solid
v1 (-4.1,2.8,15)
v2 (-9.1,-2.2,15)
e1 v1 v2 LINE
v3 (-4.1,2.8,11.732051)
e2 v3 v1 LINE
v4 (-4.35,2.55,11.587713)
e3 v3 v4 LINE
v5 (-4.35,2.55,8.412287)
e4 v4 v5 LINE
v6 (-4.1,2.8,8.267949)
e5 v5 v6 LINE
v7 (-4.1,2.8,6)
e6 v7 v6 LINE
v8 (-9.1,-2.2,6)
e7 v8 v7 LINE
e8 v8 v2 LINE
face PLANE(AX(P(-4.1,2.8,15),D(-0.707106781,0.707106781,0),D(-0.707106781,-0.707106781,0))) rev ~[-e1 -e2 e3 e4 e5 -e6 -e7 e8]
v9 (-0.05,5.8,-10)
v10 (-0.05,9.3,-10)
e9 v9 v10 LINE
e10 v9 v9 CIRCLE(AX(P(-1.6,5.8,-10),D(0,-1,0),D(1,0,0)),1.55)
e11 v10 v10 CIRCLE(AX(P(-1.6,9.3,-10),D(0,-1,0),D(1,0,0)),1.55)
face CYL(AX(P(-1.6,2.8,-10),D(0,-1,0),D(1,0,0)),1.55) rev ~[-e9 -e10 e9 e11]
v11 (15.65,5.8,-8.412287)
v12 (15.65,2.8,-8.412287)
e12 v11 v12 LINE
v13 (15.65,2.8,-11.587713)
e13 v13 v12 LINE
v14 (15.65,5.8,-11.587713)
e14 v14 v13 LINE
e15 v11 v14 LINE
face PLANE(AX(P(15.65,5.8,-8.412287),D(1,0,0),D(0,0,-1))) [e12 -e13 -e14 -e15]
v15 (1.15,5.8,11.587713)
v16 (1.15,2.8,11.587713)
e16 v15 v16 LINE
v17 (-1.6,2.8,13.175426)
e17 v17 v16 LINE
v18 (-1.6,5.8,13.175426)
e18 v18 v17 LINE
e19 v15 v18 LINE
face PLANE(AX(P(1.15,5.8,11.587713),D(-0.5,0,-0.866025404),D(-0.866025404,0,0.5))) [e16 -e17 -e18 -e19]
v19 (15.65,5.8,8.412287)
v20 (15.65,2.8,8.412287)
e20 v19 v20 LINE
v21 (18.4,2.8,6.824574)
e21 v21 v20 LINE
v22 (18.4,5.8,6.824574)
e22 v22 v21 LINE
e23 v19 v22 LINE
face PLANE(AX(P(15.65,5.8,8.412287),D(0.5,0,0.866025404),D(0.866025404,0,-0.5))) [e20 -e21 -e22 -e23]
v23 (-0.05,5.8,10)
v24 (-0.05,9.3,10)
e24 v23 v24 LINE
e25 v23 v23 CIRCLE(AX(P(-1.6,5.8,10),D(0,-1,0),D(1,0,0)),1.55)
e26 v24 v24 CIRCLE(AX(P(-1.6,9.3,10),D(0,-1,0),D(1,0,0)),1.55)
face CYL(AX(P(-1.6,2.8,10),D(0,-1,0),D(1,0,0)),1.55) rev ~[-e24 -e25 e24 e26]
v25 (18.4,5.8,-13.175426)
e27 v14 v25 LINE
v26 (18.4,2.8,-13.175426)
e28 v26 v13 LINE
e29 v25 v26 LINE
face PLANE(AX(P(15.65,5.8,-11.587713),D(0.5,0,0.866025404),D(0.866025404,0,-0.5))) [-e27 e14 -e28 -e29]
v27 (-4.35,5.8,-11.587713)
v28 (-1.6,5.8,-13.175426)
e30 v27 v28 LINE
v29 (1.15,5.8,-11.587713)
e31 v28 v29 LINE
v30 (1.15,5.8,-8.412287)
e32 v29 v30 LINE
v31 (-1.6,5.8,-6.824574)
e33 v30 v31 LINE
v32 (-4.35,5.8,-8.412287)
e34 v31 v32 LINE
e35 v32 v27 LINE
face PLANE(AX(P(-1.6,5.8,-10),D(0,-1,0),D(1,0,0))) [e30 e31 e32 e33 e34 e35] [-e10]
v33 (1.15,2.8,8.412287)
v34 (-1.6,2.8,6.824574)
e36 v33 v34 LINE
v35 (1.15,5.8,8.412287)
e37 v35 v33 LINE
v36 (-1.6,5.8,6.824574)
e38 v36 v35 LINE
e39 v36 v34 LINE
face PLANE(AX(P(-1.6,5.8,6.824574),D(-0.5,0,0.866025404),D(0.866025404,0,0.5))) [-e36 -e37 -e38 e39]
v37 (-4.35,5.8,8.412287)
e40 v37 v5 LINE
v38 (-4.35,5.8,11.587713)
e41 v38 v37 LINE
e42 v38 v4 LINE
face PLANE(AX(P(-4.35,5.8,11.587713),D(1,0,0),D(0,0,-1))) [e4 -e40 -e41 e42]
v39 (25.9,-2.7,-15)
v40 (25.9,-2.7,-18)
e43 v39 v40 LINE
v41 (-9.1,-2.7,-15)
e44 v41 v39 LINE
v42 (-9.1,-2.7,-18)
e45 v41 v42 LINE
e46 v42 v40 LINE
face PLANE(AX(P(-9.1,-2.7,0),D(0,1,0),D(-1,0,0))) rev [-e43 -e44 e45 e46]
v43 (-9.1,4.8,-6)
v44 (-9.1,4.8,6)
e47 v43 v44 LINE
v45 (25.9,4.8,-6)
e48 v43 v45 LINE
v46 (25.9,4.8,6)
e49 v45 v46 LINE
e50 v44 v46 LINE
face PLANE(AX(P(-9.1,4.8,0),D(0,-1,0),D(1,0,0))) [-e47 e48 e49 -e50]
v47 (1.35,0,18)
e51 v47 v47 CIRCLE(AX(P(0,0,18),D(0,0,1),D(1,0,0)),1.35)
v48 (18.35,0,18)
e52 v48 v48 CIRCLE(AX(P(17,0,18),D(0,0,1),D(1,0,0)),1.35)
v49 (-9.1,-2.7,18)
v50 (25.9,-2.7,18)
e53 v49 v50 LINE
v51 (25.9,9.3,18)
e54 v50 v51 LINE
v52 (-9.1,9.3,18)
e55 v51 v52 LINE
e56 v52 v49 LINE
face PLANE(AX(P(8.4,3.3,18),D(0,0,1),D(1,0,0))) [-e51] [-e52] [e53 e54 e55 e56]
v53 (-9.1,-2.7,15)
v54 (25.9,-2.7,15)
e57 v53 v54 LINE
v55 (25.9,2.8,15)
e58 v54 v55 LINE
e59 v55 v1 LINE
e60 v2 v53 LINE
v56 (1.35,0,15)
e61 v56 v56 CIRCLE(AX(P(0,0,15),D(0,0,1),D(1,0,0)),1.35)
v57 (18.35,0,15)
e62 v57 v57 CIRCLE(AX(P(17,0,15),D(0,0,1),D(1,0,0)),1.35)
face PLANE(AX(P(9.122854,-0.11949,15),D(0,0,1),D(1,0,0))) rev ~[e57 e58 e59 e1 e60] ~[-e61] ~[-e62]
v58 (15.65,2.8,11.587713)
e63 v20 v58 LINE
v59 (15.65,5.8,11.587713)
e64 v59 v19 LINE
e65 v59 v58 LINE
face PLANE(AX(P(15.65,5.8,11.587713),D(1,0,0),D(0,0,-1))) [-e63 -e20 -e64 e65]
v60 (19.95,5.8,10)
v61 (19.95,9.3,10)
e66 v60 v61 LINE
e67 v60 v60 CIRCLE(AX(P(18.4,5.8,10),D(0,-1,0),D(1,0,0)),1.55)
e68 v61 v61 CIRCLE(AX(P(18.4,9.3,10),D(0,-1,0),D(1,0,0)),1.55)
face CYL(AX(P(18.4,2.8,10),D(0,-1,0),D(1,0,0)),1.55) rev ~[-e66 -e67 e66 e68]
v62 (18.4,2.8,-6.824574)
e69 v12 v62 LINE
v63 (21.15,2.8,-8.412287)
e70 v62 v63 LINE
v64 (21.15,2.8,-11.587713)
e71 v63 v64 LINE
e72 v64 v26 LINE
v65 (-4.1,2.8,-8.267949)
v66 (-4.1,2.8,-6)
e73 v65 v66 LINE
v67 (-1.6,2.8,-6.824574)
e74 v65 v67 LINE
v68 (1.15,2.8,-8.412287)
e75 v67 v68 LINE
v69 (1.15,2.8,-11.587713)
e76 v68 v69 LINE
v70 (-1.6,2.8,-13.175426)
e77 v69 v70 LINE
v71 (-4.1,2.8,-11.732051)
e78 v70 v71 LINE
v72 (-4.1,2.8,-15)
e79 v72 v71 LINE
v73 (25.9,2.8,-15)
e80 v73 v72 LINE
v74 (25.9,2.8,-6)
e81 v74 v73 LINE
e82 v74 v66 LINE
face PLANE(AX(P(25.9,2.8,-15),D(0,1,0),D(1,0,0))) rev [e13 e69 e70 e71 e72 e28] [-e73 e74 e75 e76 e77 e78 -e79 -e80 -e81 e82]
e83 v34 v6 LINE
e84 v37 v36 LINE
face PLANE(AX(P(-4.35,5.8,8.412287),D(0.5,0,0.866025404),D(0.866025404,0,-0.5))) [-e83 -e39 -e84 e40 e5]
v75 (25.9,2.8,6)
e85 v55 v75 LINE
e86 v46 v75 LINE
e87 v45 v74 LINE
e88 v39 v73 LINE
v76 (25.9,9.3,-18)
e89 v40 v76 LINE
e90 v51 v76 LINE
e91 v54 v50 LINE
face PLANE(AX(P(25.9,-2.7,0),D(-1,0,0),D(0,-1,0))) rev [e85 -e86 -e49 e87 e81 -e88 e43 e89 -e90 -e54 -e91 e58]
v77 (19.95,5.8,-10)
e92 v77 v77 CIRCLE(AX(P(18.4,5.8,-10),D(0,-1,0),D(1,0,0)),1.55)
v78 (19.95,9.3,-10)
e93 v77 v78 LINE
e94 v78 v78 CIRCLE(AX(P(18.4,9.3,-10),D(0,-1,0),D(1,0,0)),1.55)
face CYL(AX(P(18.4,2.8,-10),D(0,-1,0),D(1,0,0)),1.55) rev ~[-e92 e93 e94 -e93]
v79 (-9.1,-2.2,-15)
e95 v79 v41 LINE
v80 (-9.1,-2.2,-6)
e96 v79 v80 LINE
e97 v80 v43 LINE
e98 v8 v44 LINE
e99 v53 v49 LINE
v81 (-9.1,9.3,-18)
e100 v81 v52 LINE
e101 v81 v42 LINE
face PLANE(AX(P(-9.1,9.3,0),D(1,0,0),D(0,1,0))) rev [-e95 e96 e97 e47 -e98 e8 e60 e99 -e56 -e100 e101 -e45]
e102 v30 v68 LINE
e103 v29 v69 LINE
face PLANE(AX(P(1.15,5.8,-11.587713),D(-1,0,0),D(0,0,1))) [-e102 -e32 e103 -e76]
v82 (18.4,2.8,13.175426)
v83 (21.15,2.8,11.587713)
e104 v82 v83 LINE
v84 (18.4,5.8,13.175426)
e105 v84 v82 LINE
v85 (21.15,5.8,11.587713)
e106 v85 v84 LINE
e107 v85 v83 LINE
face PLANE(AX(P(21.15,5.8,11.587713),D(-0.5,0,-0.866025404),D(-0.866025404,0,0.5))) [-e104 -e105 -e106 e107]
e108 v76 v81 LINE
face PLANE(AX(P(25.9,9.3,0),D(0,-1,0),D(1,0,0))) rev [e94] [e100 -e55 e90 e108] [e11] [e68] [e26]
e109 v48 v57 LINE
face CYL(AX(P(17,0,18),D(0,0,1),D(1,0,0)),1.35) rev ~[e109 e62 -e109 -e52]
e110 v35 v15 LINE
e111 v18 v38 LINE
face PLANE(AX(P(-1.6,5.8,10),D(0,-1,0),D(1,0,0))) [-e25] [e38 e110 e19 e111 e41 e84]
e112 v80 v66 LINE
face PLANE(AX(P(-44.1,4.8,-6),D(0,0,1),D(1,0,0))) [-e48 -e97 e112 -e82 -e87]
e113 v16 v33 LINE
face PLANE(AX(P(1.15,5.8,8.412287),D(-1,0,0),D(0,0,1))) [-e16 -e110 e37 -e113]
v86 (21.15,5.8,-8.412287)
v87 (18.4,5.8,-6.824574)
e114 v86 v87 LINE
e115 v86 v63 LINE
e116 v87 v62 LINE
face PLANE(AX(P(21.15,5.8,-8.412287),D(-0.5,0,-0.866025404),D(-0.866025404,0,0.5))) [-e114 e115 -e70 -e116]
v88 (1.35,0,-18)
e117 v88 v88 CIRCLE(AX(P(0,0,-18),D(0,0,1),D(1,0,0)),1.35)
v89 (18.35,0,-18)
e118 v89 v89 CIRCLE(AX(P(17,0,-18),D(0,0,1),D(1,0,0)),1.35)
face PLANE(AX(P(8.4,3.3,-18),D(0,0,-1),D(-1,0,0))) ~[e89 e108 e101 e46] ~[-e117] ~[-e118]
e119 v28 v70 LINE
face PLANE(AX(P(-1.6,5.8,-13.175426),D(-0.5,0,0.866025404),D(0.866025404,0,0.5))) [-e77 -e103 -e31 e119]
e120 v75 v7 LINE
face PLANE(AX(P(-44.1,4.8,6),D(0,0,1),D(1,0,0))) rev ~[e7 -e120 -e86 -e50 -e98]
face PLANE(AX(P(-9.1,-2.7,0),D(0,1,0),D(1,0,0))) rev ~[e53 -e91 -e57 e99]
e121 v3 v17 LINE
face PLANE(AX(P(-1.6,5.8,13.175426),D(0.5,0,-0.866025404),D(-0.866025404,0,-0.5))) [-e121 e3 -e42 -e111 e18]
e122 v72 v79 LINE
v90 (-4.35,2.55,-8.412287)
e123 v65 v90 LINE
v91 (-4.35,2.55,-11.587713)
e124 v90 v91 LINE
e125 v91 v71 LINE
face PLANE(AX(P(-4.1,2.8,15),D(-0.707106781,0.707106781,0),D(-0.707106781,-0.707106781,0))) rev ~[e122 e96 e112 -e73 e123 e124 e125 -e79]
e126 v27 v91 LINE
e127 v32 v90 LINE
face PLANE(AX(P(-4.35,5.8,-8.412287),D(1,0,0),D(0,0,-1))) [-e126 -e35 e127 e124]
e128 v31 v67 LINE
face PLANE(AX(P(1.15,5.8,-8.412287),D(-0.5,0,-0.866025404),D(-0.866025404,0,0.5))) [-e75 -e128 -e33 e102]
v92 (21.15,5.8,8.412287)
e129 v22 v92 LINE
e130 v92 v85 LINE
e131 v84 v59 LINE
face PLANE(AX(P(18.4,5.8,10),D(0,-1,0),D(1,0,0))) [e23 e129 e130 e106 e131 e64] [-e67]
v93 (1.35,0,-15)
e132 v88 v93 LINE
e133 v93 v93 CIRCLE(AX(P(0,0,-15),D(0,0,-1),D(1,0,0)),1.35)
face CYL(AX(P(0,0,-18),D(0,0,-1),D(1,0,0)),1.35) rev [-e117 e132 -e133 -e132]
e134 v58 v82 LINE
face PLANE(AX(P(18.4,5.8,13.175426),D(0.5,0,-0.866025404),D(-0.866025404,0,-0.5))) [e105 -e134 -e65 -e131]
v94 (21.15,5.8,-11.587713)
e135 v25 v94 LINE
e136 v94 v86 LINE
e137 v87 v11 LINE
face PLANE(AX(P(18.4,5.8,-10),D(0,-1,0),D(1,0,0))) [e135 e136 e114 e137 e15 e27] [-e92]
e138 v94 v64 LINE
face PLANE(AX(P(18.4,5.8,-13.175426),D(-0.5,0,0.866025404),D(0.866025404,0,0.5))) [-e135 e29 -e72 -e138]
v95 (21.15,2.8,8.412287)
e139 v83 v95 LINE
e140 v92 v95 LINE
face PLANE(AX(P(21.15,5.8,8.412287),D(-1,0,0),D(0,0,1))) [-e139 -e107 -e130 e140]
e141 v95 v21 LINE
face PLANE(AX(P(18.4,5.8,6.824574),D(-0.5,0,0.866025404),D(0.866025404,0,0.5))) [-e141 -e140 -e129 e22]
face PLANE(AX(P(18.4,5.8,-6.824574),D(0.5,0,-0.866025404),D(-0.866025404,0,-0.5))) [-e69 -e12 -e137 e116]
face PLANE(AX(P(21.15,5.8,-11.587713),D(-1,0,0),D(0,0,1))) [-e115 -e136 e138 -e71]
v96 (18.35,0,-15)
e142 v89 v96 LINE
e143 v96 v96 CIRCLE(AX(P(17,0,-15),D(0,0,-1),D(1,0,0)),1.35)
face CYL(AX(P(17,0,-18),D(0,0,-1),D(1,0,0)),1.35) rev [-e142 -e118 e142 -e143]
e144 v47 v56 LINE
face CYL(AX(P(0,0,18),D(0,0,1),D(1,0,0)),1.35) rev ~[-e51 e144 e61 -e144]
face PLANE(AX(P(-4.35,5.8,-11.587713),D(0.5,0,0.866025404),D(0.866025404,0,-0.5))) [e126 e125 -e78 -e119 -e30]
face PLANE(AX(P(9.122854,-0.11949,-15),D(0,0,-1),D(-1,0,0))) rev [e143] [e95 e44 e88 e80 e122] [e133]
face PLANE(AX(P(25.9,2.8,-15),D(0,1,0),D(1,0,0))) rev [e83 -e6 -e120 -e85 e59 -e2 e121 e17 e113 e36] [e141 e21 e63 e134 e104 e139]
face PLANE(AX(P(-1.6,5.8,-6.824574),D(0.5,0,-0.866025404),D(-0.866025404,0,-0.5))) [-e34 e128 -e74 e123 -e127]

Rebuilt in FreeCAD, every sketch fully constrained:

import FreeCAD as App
import Part
import Sketcher
Q = App.Units.Quantity


def add_polygon(sketch, points):
    """Adds a closed chain of lines whose ends are joined by coincident constraints."""
    first, n = sketch.GeometryCount, len(points)
    for a, b in zip(points, points[1:] + points[:1]):
        sketch.addGeometry(Part.LineSegment(App.Vector(*a, 0), App.Vector(*b, 0)), False)
    for i in range(n):
        sketch.addConstraint(Sketcher.Constraint("Coincident", first + i, 2, first + (i + 1) % n, 1))

doc = App.newDocument("Part")
params = doc.addObject("Spreadsheet::Sheet", "Params")
for row, (alias, value) in enumerate([
    ("sketch1_width", "35 mm"),
    ("sketch1_height", "12 mm"),
    ("pad1_length", "18 mm"),
    ("sketch2_diameter", "2.7 mm"),
    ("pocket1_length", "5 mm"),
    ("sketch3_width", "35 mm"),
    ("sketch3_width2", "30 mm"),
    ("sketch3_height", "5.5 mm"),
    ("pocket2_length", "17 mm"),
    ("sketch4_width", "70 mm"),
    ("sketch4_height", "12 mm"),
    ("pocket3_length", "33.203416 mm"),
    ("pocket3_length2", "2 mm"),
    ("pocket4_length", "2.5 mm"),
    ("pocket4_length2", "3 mm"),
    ("sketch6_diameter", "3.1 mm"),
], start=1):
    params.set(f"A{row}", alias)
    params.set(f"B{row}", "=" + value)
    params.setAlias(f"B{row}", alias)

body = doc.addObject("PartDesign::Body", "Body")

# Sketch on XY plane
sketch1 = body.newObject("Sketcher::SketchObject", "Sketch")
sketch1.AttachmentSupport = (doc.getObject("XY_Plane"), [""])
sketch1.MapMode = "FlatFace"
add_polygon(sketch1, [(26, 9), (-9, 9), (-9, -3), (26, -3)])  # lines 0-3
sketch1.addConstraint(Sketcher.Constraint("Horizontal", 0))
sketch1.addConstraint(Sketcher.Constraint("Vertical", 1))
sketch1.addConstraint(Sketcher.Constraint("Horizontal", 2))
sketch1.addConstraint(Sketcher.Constraint("Vertical", 3))
sketch1.addConstraint(Sketcher.Constraint("DistanceX", 0, 2, 0, 1, 35.0))
sketch1.addConstraint(Sketcher.Constraint("DistanceY", 1, 2, 1, 1, 12.0))
sketch1.addConstraint(Sketcher.Constraint("DistanceX", 0, 2, -1, 1, 9.1))
sketch1.addConstraint(Sketcher.Constraint("DistanceY", -1, 1, 0, 2, 9.3))
sketch1.setExpression("Constraints[8]", "Params.sketch1_width")
sketch1.setExpression("Constraints[9]", "Params.sketch1_height")
pad1 = body.newObject("PartDesign::Pad", "Pad")
pad1.Profile = sketch1
pad1.setExpression("Length", "Params.pad1_length")

# Sketch on XY plane
sketch2 = body.newObject("Sketcher::SketchObject", "Sketch001")
sketch2.AttachmentSupport = (doc.getObject("XY_Plane"), [""])
sketch2.MapMode = "FlatFace"
sketch2.AttachmentOffset = App.Placement(App.Vector(0, 0, 18), App.Rotation())
sketch2.addGeometry(Part.Circle(App.Vector(0, 0, 0), App.Vector(0, 0, 1), 1.4), False)
sketch2.addGeometry(Part.Circle(App.Vector(17, 0, 0), App.Vector(0, 0, 1), 1.4), False)
sketch2.addConstraint(Sketcher.Constraint("Coincident", 0, 3, -1, 1))
sketch2.addConstraint(Sketcher.Constraint("Equal", 0, 1))
sketch2.addConstraint(Sketcher.Constraint("PointOnObject", 1, 3, -1))
sketch2.addConstraint(Sketcher.Constraint("Diameter", 0, 2.7))
sketch2.addConstraint(Sketcher.Constraint("DistanceX", -1, 1, 1, 3, 17.0))
sketch2.setExpression("Constraints[3]", "Params.sketch2_diameter")
pocket1 = body.newObject("PartDesign::Pocket", "Pocket")
pocket1.Profile = sketch2
pocket1.setExpression("Length", "Params.pocket1_length")

# Sketch on XY plane
sketch3 = body.newObject("Sketcher::SketchObject", "Sketch002")
sketch3.AttachmentSupport = (doc.getObject("XY_Plane"), [""])
sketch3.MapMode = "FlatFace"
sketch3.AttachmentOffset = App.Placement(App.Vector(0, 0, 15), App.Rotation())
add_polygon(sketch3, [(25.9, 2.8), (25.9, -2.7), (-9.1, -2.7), (-9.1, -2.2), (-4.1, 2.8)])  # lines 0-4
sketch3.addConstraint(Sketcher.Constraint("Vertical", 0))
sketch3.addConstraint(Sketcher.Constraint("Horizontal", 1))
sketch3.addConstraint(Sketcher.Constraint("Vertical", 2))
sketch3.addConstraint(Sketcher.Constraint("Horizontal", 4))
sketch3.addConstraint(Sketcher.Constraint("DistanceX", 1, 2, 1, 1, 35.0))
sketch3.addConstraint(Sketcher.Constraint("DistanceX", 4, 1, 4, 2, 30.0))
sketch3.addConstraint(Sketcher.Constraint("Angle", 3, Q("45 deg")))
sketch3.addConstraint(Sketcher.Constraint("DistanceY", 0, 2, 0, 1, 5.5))
sketch3.addConstraint(Sketcher.Constraint("DistanceX", -1, 1, 0, 2, 25.9))
sketch3.addConstraint(Sketcher.Constraint("DistanceY", 0, 2, -1, 1, 2.7))
sketch3.setExpression("Constraints[9]", "Params.sketch3_width")
sketch3.setExpression("Constraints[10]", "Params.sketch3_width2")
sketch3.setExpression("Constraints[12]", "Params.sketch3_height")
pocket2 = body.newObject("PartDesign::Pocket", "Pocket001")
pocket2.Profile = sketch3
pocket2.setExpression("Length", "Params.pocket2_length")
doc.recompute()

mirrored = body.newObject("PartDesign::Mirrored", "Mirrored")
mirrored.Originals = [pad1, pocket1, pocket2]
mirrored.MirrorPlane = (doc.getObject("XY_Plane"), [""])
body.Tip = mirrored

# Sketch on XZ plane
sketch4 = body.newObject("Sketcher::SketchObject", "Sketch003")
sketch4.AttachmentSupport = (doc.getObject("XZ_Plane"), [""])
sketch4.MapMode = "FlatFace"
sketch4.AttachmentOffset = App.Placement(App.Vector(0, 0, -2.8), App.Rotation())
add_polygon(sketch4, [(-44, 6), (-44, -6), (26, -6), (26, 6)])  # lines 0-3
sketch4.addConstraint(Sketcher.Constraint("Vertical", 0))
sketch4.addConstraint(Sketcher.Constraint("Horizontal", 1))
sketch4.addConstraint(Sketcher.Constraint("Vertical", 2))
sketch4.addConstraint(Sketcher.Constraint("Horizontal", 3))
sketch4.addConstraint(Sketcher.Constraint("DistanceX", 1, 1, 1, 2, 70.0))
sketch4.addConstraint(Sketcher.Constraint("DistanceY", 0, 2, 0, 1, 12.0))
sketch4.addConstraint(Sketcher.Constraint("DistanceY", 0, 2, -1, 1, 6.0))
sketch4.addConstraint(Sketcher.Constraint("DistanceX", 0, 2, -1, 1, 44.1))
sketch4.setExpression("Constraints[8]", "Params.sketch4_width")
sketch4.setExpression("Constraints[9]", "Params.sketch4_height")
pocket3 = body.newObject("PartDesign::Pocket", "Pocket002")
pocket3.Profile = sketch4
pocket3.Type = "TwoLengths"
pocket3.setExpression("Length", "Params.pocket3_length")
pocket3.setExpression("Length2", "Params.pocket3_length2")
pocket3.Reversed = True

# Sketch on XZ plane
sketch5 = body.newObject("Sketcher::SketchObject", "Sketch004")
sketch5.AttachmentSupport = (doc.getObject("XZ_Plane"), [""])
sketch5.MapMode = "FlatFace"
sketch5.AttachmentOffset = App.Placement(App.Vector(0, 0, -2.8), App.Rotation())
add_polygon(sketch5, [(-1.6, 13.2), (-4.3, 11.6), (-4.3, 8.4), (-1.6, 6.8), (1.1, 8.4), (1.1, 11.6)])  # lines 0-5
add_polygon(sketch5, [(18.4, 13.2), (15.7, 11.6), (15.7, 8.4), (18.4, 6.8), (21.1, 8.4), (21.1, 11.6)])  # lines 6-11
add_polygon(sketch5, [(-1.6, -6.8), (-4.3, -8.4), (-4.3, -11.6), (-1.6, -13.2), (1.1, -11.6), (1.1, -8.4)])  # lines 12-17
add_polygon(sketch5, [(18.4, -6.8), (15.7, -8.4), (15.7, -11.6), (18.4, -13.2), (21.1, -11.6), (21.1, -8.4)])  # lines 18-23
sketch5.addConstraint(Sketcher.Constraint("Vertical", 1))
sketch5.addConstraint(Sketcher.Constraint("Vertical", 4))
sketch5.addConstraint(Sketcher.Constraint("Vertical", 7))
sketch5.addConstraint(Sketcher.Constraint("Vertical", 10))
sketch5.addConstraint(Sketcher.Constraint("Vertical", 13))
sketch5.addConstraint(Sketcher.Constraint("Vertical", 16))
sketch5.addConstraint(Sketcher.Constraint("Vertical", 19))
sketch5.addConstraint(Sketcher.Constraint("Vertical", 22))
sketch5.addConstraint(Sketcher.Constraint("Symmetric", 1, 2, 12, 2, -1))
sketch5.addConstraint(Sketcher.Constraint("Symmetric", 5, 2, 14, 2, -1))
sketch5.addConstraint(Sketcher.Constraint("Symmetric", 4, 2, 15, 2, -1))
sketch5.addConstraint(Sketcher.Constraint("Symmetric", 2, 2, 17, 2, -1))
sketch5.addConstraint(Sketcher.Constraint("Symmetric", 7, 2, 18, 2, -1))
sketch5.addConstraint(Sketcher.Constraint("Symmetric", 11, 2, 20, 2, -1))
sketch5.addConstraint(Sketcher.Constraint("Symmetric", 10, 2, 21, 2, -1))
sketch5.addConstraint(Sketcher.Constraint("Symmetric", 8, 2, 23, 2, -1))
sketch5.addConstraint(Sketcher.Constraint("Parallel", 0, 3))
sketch5.addConstraint(Sketcher.Constraint("Parallel", 2, 5))
sketch5.addConstraint(Sketcher.Constraint("Parallel", 3, 6))
sketch5.addConstraint(Sketcher.Constraint("Parallel", 5, 8))
sketch5.addConstraint(Sketcher.Constraint("Parallel", 6, 9))
sketch5.addConstraint(Sketcher.Constraint("Parallel", 8, 11))
sketch5.addConstraint(Sketcher.Constraint("Parallel", 9, 12))
sketch5.addConstraint(Sketcher.Constraint("Parallel", 11, 14))
sketch5.addConstraint(Sketcher.Constraint("Parallel", 14, 17))
sketch5.addConstraint(Sketcher.Constraint("Parallel", 17, 20))
sketch5.addConstraint(Sketcher.Constraint("Parallel", 20, 23))
sketch5.addConstraint(Sketcher.Constraint("Horizontal", 1, 2, 3, 2))
sketch5.addConstraint(Sketcher.Constraint("Horizontal", 0, 2, 4, 2))
sketch5.addConstraint(Sketcher.Constraint("Horizontal", 4, 2, 6, 2))
sketch5.addConstraint(Sketcher.Constraint("Horizontal", 3, 2, 7, 2))
sketch5.addConstraint(Sketcher.Constraint("Horizontal", 2, 2, 8, 2))
sketch5.addConstraint(Sketcher.Constraint("Horizontal", 7, 2, 9, 2))
sketch5.addConstraint(Sketcher.Constraint("Horizontal", 6, 2, 10, 2))
sketch5.addConstraint(Sketcher.Constraint("Angle", 0, Q("-150 deg")))
sketch5.addConstraint(Sketcher.Constraint("DistanceX", 0, 2, 6, 2, 20.0))
sketch5.addConstraint(Sketcher.Constraint("DistanceY", 12, 2, 0, 2, 20.0))
sketch5.addConstraint(Sketcher.Constraint("DistanceX", 2, 2, -1, 1, 1.6))
sketch5.addConstraint(Sketcher.Constraint("DistanceX", 1, 2, 3, 2, 5.5))
sketch5.addConstraint(Sketcher.Constraint("DistanceY", 1, 2, 1, 1, 3.175426))
pocket4 = body.newObject("PartDesign::Pocket", "Pocket003")
pocket4.Profile = sketch5
pocket4.Type = "TwoLengths"
pocket4.setExpression("Length", "Params.pocket4_length")
pocket4.setExpression("Length2", "Params.pocket4_length2")
pocket4.Reversed = True

# Sketch on XZ plane
sketch6 = body.newObject("Sketcher::SketchObject", "Sketch005")
sketch6.AttachmentSupport = (doc.getObject("XZ_Plane"), [""])
sketch6.MapMode = "FlatFace"
sketch6.AttachmentOffset = App.Placement(App.Vector(0, 0, -2.8), App.Rotation())
sketch6.addGeometry(Part.Circle(App.Vector(-69.57, 7.02, 0), App.Vector(0, 0, 1), 0.16), False)
sketch6.addGeometry(Part.Circle(App.Vector(-1.6, 10, 0), App.Vector(0, 0, 1), 1.55), False)
sketch6.addGeometry(Part.Circle(App.Vector(18.4, 10, 0), App.Vector(0, 0, 1), 1.55), False)
sketch6.addGeometry(Part.Circle(App.Vector(18.4, -10, 0), App.Vector(0, 0, 1), 1.55), False)
sketch6.addGeometry(Part.Circle(App.Vector(-1.6, -10, 0), App.Vector(0, 0, 1), 1.55), False)
sketch6.addConstraint(Sketcher.Constraint("Equal", 1, 2))
sketch6.addConstraint(Sketcher.Constraint("Equal", 2, 3))
sketch6.addConstraint(Sketcher.Constraint("Equal", 3, 4))
sketch6.addConstraint(Sketcher.Constraint("Symmetric", 2, 3, 3, 3, -1))
sketch6.addConstraint(Sketcher.Constraint("Symmetric", 1, 3, 4, 3, -1))
sketch6.addConstraint(Sketcher.Constraint("Horizontal", 1, 3, 2, 3))
sketch6.addConstraint(Sketcher.Constraint("Diameter", 1, 3.1))
sketch6.addConstraint(Sketcher.Constraint("DistanceY", -1, 1, 1, 3, 10.0))
sketch6.addConstraint(Sketcher.Constraint("DistanceX", 1, 3, 2, 3, 20.0))
sketch6.addConstraint(Sketcher.Constraint("DistanceX", 1, 3, -1, 1, 1.6))
sketch6.addConstraint(Sketcher.Constraint("Diameter", 0, 0.322197))
sketch6.addConstraint(Sketcher.Constraint("DistanceY", -1, 1, 0, 3, 7.024441))
sketch6.addConstraint(Sketcher.Constraint("DistanceX", 0, 3, -1, 1, 69.565346))
sketch6.setExpression("Constraints[6]", "Params.sketch6_diameter")
pocket5 = body.newObject("PartDesign::Pocket", "Pocket004")
pocket5.Profile = sketch6
pocket5.Type = "ThroughAll"

doc.recompute()
